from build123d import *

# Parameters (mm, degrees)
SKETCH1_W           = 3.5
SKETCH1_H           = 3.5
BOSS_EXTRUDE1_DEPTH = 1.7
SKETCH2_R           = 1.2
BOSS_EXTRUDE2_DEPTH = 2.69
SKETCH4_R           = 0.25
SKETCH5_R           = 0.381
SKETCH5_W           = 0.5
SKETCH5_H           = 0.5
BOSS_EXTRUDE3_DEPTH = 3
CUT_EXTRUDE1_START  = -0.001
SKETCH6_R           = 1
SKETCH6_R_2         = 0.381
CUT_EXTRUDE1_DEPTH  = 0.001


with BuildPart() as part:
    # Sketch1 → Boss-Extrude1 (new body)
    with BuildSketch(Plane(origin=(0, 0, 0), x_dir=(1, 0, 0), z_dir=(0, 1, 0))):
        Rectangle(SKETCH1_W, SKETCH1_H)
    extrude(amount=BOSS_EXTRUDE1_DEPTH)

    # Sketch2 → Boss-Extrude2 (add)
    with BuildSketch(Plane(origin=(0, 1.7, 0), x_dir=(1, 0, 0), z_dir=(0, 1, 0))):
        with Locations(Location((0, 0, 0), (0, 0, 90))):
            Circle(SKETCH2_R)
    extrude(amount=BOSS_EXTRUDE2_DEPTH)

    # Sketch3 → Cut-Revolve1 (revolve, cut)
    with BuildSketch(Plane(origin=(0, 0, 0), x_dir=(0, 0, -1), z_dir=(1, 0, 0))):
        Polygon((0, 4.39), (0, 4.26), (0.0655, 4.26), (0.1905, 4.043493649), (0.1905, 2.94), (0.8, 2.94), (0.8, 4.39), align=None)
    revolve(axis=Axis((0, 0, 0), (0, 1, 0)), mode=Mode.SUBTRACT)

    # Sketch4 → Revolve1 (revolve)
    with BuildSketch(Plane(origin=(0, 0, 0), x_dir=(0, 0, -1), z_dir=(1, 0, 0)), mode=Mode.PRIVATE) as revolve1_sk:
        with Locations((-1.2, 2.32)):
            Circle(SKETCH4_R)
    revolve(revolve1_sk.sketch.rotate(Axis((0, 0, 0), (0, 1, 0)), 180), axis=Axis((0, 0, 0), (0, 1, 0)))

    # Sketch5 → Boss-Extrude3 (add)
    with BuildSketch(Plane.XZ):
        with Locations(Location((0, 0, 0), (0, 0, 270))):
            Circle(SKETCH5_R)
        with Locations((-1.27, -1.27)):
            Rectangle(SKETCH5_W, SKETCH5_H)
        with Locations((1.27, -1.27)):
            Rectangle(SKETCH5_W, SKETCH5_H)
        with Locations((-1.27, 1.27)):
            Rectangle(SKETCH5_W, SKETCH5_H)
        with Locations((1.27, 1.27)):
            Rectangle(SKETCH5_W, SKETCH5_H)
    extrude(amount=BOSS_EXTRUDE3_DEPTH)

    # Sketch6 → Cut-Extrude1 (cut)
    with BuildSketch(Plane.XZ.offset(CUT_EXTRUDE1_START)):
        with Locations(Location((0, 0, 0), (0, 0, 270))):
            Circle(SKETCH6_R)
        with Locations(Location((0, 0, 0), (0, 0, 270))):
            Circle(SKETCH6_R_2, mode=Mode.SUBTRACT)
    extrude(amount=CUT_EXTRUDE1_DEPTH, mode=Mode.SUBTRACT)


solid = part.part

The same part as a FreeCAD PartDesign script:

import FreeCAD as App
import Part
import Sketcher
Q = App.Units.Quantity

doc = App.newDocument("Part")
params = doc.addObject("Spreadsheet::Sheet", "Params")
for row, (alias, value) in enumerate([
    ("sketch1_width", "3.5 mm"),
    ("pad1_length", "1.7 mm"),
    ("sketch2_diameter", "2.4 mm"),
    ("pad2_length", "2.69 mm"),
    ("sketch3_height", "0.8 mm"),
    ("sketch3_width", "0.13 mm"),
    ("sketch3_width2", "1.45 mm"),
    ("sketch3_length", "0.25 mm"),
    ("groove_angle", "360 deg"),
    ("sketch4_diameter", "0.5 mm"),
    ("revolution_angle", "360 deg"),
    ("sketch5_width", "0.5 mm"),
    ("pad3_length", "3 mm"),
    ("sketch6_diameter", "2 mm"),
    ("pocket1_length", "0.001 mm"),
], start=1):
    params.set(f"A{row}", alias)
    params.set(f"B{row}", "=" + value)
    params.setAlias(f"B{row}", alias)

body = doc.addObject("PartDesign::Body", "Body")

sketch1 = body.newObject("Sketcher::SketchObject", "Sketch")
sketch1.AttachmentSupport = (doc.getObject("XZ_Plane"), [""])
sketch1.MapMode = "FlatFace"
sketch1.addGeometry(Part.LineSegment(App.Vector(-1.8, -1.8, 0), App.Vector(-1.8, 1.8, 0)), False)
sketch1.addGeometry(Part.LineSegment(App.Vector(-1.8, 1.8, 0), App.Vector(1.8, 1.8, 0)), False)
sketch1.addGeometry(Part.LineSegment(App.Vector(1.8, 1.8, 0), App.Vector(1.8, -1.8, 0)), False)
sketch1.addGeometry(Part.LineSegment(App.Vector(1.8, -1.8, 0), App.Vector(-1.8, -1.8, 0)), False)
sketch1.addConstraint(Sketcher.Constraint("Coincident", 0, 2, 1, 1))
sketch1.addConstraint(Sketcher.Constraint("Coincident", 1, 2, 2, 1))
sketch1.addConstraint(Sketcher.Constraint("Coincident", 2, 2, 3, 1))
sketch1.addConstraint(Sketcher.Constraint("Coincident", 3, 2, 0, 1))
sketch1.addConstraint(Sketcher.Constraint("Vertical", 0))
sketch1.addConstraint(Sketcher.Constraint("Horizontal", 1))
sketch1.addConstraint(Sketcher.Constraint("Vertical", 2))
sketch1.addConstraint(Sketcher.Constraint("Horizontal", 3))
sketch1.addConstraint(Sketcher.Constraint("Symmetric", 0, 2, 2, 2, -1, 1))
sketch1.addConstraint(Sketcher.Constraint("Equal", 3, 0))
sketch1.addConstraint(Sketcher.Constraint("DistanceX", 1, 1, 1, 2, Q("3.5 mm")))
sketch1.setExpression("Constraints[10]", "Params.sketch1_width")
pad1 = body.newObject("PartDesign::Pad", "Pad")
pad1.Profile = sketch1
pad1.setExpression("Length", "Params.pad1_length")
pad1.Reversed = True

sketch2 = body.newObject("Sketcher::SketchObject", "Sketch001")
sketch2.AttachmentSupport = (doc.getObject("XZ_Plane"), [""])
sketch2.MapMode = "FlatFace"
sketch2.AttachmentOffset = App.Placement(App.Vector(0, 0, -1.7), App.Rotation())
sketch2.addGeometry(Part.Circle(App.Vector(0, 0, 0), App.Vector(0, 0, 1), 1.2), False)
sketch2.addConstraint(Sketcher.Constraint("Coincident", 0, 3, -1, 1))
sketch2.addConstraint(Sketcher.Constraint("Diameter", 0, Q("2.4 mm")))
sketch2.setExpression("Constraints[1]", "Params.sketch2_diameter")
pad2 = body.newObject("PartDesign::Pad", "Pad001")
pad2.Profile = sketch2
pad2.setExpression("Length", "Params.pad2_length")
pad2.Reversed = True

sketch3 = body.newObject("Sketcher::SketchObject", "Sketch002")
sketch3.AttachmentSupport = (doc.getObject("YZ_Plane"), [""])
sketch3.MapMode = "FlatFace"
sketch3.addGeometry(Part.LineSegment(App.Vector(4.39, 0, 0), App.Vector(4.26, 0, 0)), False)
sketch3.addGeometry(Part.LineSegment(App.Vector(4.26, 0, 0), App.Vector(4.26, -0.07, 0)), False)
sketch3.addGeometry(Part.LineSegment(App.Vector(4.26, -0.07, 0), App.Vector(4.04, -0.19, 0)), False)
sketch3.addGeometry(Part.LineSegment(App.Vector(4.04, -0.19, 0), App.Vector(2.94, -0.19, 0)), False)
sketch3.addGeometry(Part.LineSegment(App.Vector(2.94, -0.19, 0), App.Vector(2.94, -0.8, 0)), False)
sketch3.addGeometry(Part.LineSegment(App.Vector(2.94, -0.8, 0), App.Vector(4.39, -0.8, 0)), False)
sketch3.addGeometry(Part.LineSegment(App.Vector(4.39, -0.8, 0), App.Vector(4.39, 0, 0)), False)
sketch3.addConstraint(Sketcher.Constraint("Coincident", 0, 2, 1, 1))
sketch3.addConstraint(Sketcher.Constraint("Coincident", 1, 2, 2, 1))
sketch3.addConstraint(Sketcher.Constraint("Coincident", 2, 2, 3, 1))
sketch3.addConstraint(Sketcher.Constraint("Coincident", 3, 2, 4, 1))
sketch3.addConstraint(Sketcher.Constraint("Coincident", 4, 2, 5, 1))
sketch3.addConstraint(Sketcher.Constraint("Coincident", 5, 2, 6, 1))
sketch3.addConstraint(Sketcher.Constraint("Coincident", 6, 2, 0, 1))
sketch3.addConstraint(Sketcher.Constraint("Horizontal", 0))
sketch3.addConstraint(Sketcher.Constraint("Vertical", 1))
sketch3.addConstraint(Sketcher.Constraint("Horizontal", 3))
sketch3.addConstraint(Sketcher.Constraint("Vertical", 4))
sketch3.addConstraint(Sketcher.Constraint("Horizontal", 5))
sketch3.addConstraint(Sketcher.Constraint("Vertical", 6))
sketch3.addConstraint(Sketcher.Constraint("PointOnObject", 0, 2, -1))
sketch3.addConstraint(Sketcher.Constraint("Angle", 2, Q("-150 deg")))
sketch3.addConstraint(Sketcher.Constraint("DistanceY", 6, 1, 6, 2, Q("0.8 mm")))
sketch3.addConstraint(Sketcher.Constraint("DistanceX", 0, 2, 0, 1, Q("0.13 mm")))
sketch3.addConstraint(Sketcher.Constraint("DistanceX", 5, 1, 5, 2, Q("1.45 mm")))
sketch3.addConstraint(Sketcher.Constraint("Distance", 2, Q("0.25 mm")))
sketch3.addConstraint(Sketcher.Constraint("DistanceX", -1, 1, 0, 2, Q("4.26 mm")))
sketch3.addConstraint(Sketcher.Constraint("DistanceY", 1, 2, 1, 1, Q("0.0655 mm")))
sketch3.setExpression("Constraints[15]", "Params.sketch3_height")
sketch3.setExpression("Constraints[16]", "Params.sketch3_width")
sketch3.setExpression("Constraints[17]", "Params.sketch3_width2")
sketch3.setExpression("Constraints[18]", "Params.sketch3_length")
groove = body.newObject("PartDesign::Groove", "Groove")
groove.Profile = sketch3
groove.ReferenceAxis = (sketch3, ["H_Axis"])
groove.setExpression("Angle", "Params.groove_angle")

sketch4 = body.newObject("Sketcher::SketchObject", "Sketch003")
sketch4.AttachmentSupport = (doc.getObject("YZ_Plane"), [""])
sketch4.MapMode = "FlatFace"
sketch4.addGeometry(Part.Circle(App.Vector(2.32, 1.2, 0), App.Vector(0, 0, 1), 0.25), False)
sketch4.addConstraint(Sketcher.Constraint("Diameter", 0, Q("0.5 mm")))
sketch4.addConstraint(Sketcher.Constraint("DistanceY", -1, 1, 0, 3, Q("1.2 mm")))
sketch4.addConstraint(Sketcher.Constraint("DistanceX", -1, 1, 0, 3, Q("2.32 mm")))
sketch4.setExpression("Constraints[0]", "Params.sketch4_diameter")
revolution = body.newObject("PartDesign::Revolution", "Revolution")
revolution.Profile = sketch4
revolution.ReferenceAxis = (sketch4, ["H_Axis"])
revolution.setExpression("Angle", "Params.revolution_angle")

sketch5 = body.newObject("Sketcher::SketchObject", "Sketch004")
sketch5.AttachmentSupport = (doc.getObject("XZ_Plane"), [""])
sketch5.MapMode = "FlatFace"
sketch5.addGeometry(Part.Circle(App.Vector(0, 0, 0), App.Vector(0, 0, 1), 0.38), False)
sketch5.addGeometry(Part.LineSegment(App.Vector(-1.52, -1.02, 0), App.Vector(-1.52, -1.52, 0)), False)
sketch5.addGeometry(Part.LineSegment(App.Vector(-1.52, -1.52, 0), App.Vector(-1.02, -1.52, 0)), False)
sketch5.addGeometry(Part.LineSegment(App.Vector(-1.02, -1.52, 0), App.Vector(-1.02, -1.02, 0)), False)
sketch5.addGeometry(Part.LineSegment(App.Vector(-1.02, -1.02, 0), App.Vector(-1.52, -1.02, 0)), False)
sketch5.addGeometry(Part.LineSegment(App.Vector(1.02, -1.02, 0), App.Vector(1.02, -1.52, 0)), False)
sketch5.addGeometry(Part.LineSegment(App.Vector(1.02, -1.52, 0), App.Vector(1.52, -1.52, 0)), False)
sketch5.addGeometry(Part.LineSegment(App.Vector(1.52, -1.52, 0), App.Vector(1.52, -1.02, 0)), False)
sketch5.addGeometry(Part.LineSegment(App.Vector(1.52, -1.02, 0), App.Vector(1.02, -1.02, 0)), False)
sketch5.addGeometry(Part.LineSegment(App.Vector(-1.52, 1.52, 0), App.Vector(-1.52, 1.02, 0)), False)
sketch5.addGeometry(Part.LineSegment(App.Vector(-1.52, 1.02, 0), App.Vector(-1.02, 1.02, 0)), False)
sketch5.addGeometry(Part.LineSegment(App.Vector(-1.02, 1.02, 0), App.Vector(-1.02, 1.52, 0)), False)
sketch5.addGeometry(Part.LineSegment(App.Vector(-1.02, 1.52, 0), App.Vector(-1.52, 1.52, 0)), False)
sketch5.addGeometry(Part.LineSegment(App.Vector(1.02, 1.52, 0), App.Vector(1.02, 1.02, 0)), False)
sketch5.addGeometry(Part.LineSegment(App.Vector(1.02, 1.02, 0), App.Vector(1.52, 1.02, 0)), False)
sketch5.addGeometry(Part.LineSegment(App.Vector(1.52, 1.02, 0), App.Vector(1.52, 1.52, 0)), False)
sketch5.addGeometry(Part.LineSegment(App.Vector(1.52, 1.52, 0), App.Vector(1.02, 1.52, 0)), False)
sketch5.addConstraint(Sketcher.Constraint("Coincident", 1, 2, 2, 1))
sketch5.addConstraint(Sketcher.Constraint("Coincident", 2, 2, 3, 1))
sketch5.addConstraint(Sketcher.Constraint("Coincident", 3, 2, 4, 1))
sketch5.addConstraint(Sketcher.Constraint("Coincident", 4, 2, 1, 1))
sketch5.addConstraint(Sketcher.Constraint("Coincident", 5, 2, 6, 1))
sketch5.addConstraint(Sketcher.Constraint("Coincident", 6, 2, 7, 1))
sketch5.addConstraint(Sketcher.Constraint("Coincident", 7, 2, 8, 1))
sketch5.addConstraint(Sketcher.Constraint("Coincident", 8, 2, 5, 1))
sketch5.addConstraint(Sketcher.Constraint("Coincident", 9, 2, 10, 1))
sketch5.addConstraint(Sketcher.Constraint("Coincident", 10, 2, 11, 1))
sketch5.addConstraint(Sketcher.Constraint("Coincident", 11, 2, 12, 1))
sketch5.addConstraint(Sketcher.Constraint("Coincident", 12, 2, 9, 1))
sketch5.addConstraint(Sketcher.Constraint("Coincident", 13, 2, 14, 1))
sketch5.addConstraint(Sketcher.Constraint("Coincident", 14, 2, 15, 1))
sketch5.addConstraint(Sketcher.Constraint("Coincident", 15, 2, 16, 1))
sketch5.addConstraint(Sketcher.Constraint("Coincident", 16, 2, 13, 1))
sketch5.addConstraint(Sketcher.Constraint("Vertical", 1))
sketch5.addConstraint(Sketcher.Constraint("Horizontal", 2))
sketch5.addConstraint(Sketcher.Constraint("Vertical", 3))
sketch5.addConstraint(Sketcher.Constraint("Horizontal", 4))
sketch5.addConstraint(Sketcher.Constraint("Vertical", 5))
sketch5.addConstraint(Sketcher.Constraint("Horizontal", 6))
sketch5.addConstraint(Sketcher.Constraint("Vertical", 7))
sketch5.addConstraint(Sketcher.Constraint("Horizontal", 8))
sketch5.addConstraint(Sketcher.Constraint("Vertical", 9))
sketch5.addConstraint(Sketcher.Constraint("Horizontal", 10))
sketch5.addConstraint(Sketcher.Constraint("Vertical", 11))
sketch5.addConstraint(Sketcher.Constraint("Horizontal", 12))
sketch5.addConstraint(Sketcher.Constraint("Vertical", 13))
sketch5.addConstraint(Sketcher.Constraint("Horizontal", 14))
sketch5.addConstraint(Sketcher.Constraint("Vertical", 15))
sketch5.addConstraint(Sketcher.Constraint("Horizontal", 16))
sketch5.addConstraint(Sketcher.Constraint("Coincident", 0, 3, -1, 1))
sketch5.addConstraint(Sketcher.Constraint("Symmetric", 7, 2, 9, 2, -1, 1))
sketch5.addConstraint(Sketcher.Constraint("Symmetric", 5, 2, 11, 2, -1, 1))
sketch5.addConstraint(Sketcher.Constraint("Symmetric", 3, 2, 13, 2, -1, 1))
sketch5.addConstraint(Sketcher.Constraint("Symmetric", 1, 2, 15, 2, -1, 1))
sketch5.addConstraint(Sketcher.Constraint("Symmetric", 2, 2, 5, 2, -2))
sketch5.addConstraint(Sketcher.Constraint("Symmetric", 4, 2, 7, 2, -2))
sketch5.addConstraint(Sketcher.Constraint("Equal", 16, 1))
sketch5.addConstraint(Sketcher.Constraint("Diameter", 0, Q("0.762 mm")))
sketch5.addConstraint(Sketcher.Constraint("DistanceX", 2, 1, 2, 2, Q("0.5 mm")))
sketch5.addConstraint(Sketcher.Constraint("DistanceX", 1, 2, -1, 1, Q("1.52 mm")))
sketch5.addConstraint(Sketcher.Constraint("DistanceY", 1, 2, -1, 1, Q("1.52 mm")))
sketch5.setExpression("Constraints[41]", "Params.sketch5_width")
pad3 = body.newObject("PartDesign::Pad", "Pad002")
pad3.Profile = sketch5
pad3.setExpression("Length", "Params.pad3_length")

sketch6 = body.newObject("Sketcher::SketchObject", "Sketch005")
sketch6.AttachmentSupport = (doc.getObject("XZ_Plane"), [""])
sketch6.MapMode = "FlatFace"
sketch6.AttachmentOffset = App.Placement(App.Vector(0, 0, -0.001), App.Rotation())
sketch6.addGeometry(Part.Circle(App.Vector(0, 0, 0), App.Vector(0, 0, 1), 1), False)
sketch6.addGeometry(Part.Circle(App.Vector(0, 0, 0), App.Vector(0, 0, 1), 0.38), False)
sketch6.addConstraint(Sketcher.Constraint("Coincident", 0, 3, -1, 1))
sketch6.addConstraint(Sketcher.Constraint("Coincident", 1, 3, -1, 1))
sketch6.addConstraint(Sketcher.Constraint("Diameter", 0, Q("2 mm")))
sketch6.addConstraint(Sketcher.Constraint("Diameter", 1, Q("0.762 mm")))
sketch6.setExpression("Constraints[2]", "Params.sketch6_diameter")
pocket1 = body.newObject("PartDesign::Pocket", "Pocket")
pocket1.Profile = sketch6
pocket1.setExpression("Length", "Params.pocket1_length")
pocket1.Reversed = True

doc.recompute()
